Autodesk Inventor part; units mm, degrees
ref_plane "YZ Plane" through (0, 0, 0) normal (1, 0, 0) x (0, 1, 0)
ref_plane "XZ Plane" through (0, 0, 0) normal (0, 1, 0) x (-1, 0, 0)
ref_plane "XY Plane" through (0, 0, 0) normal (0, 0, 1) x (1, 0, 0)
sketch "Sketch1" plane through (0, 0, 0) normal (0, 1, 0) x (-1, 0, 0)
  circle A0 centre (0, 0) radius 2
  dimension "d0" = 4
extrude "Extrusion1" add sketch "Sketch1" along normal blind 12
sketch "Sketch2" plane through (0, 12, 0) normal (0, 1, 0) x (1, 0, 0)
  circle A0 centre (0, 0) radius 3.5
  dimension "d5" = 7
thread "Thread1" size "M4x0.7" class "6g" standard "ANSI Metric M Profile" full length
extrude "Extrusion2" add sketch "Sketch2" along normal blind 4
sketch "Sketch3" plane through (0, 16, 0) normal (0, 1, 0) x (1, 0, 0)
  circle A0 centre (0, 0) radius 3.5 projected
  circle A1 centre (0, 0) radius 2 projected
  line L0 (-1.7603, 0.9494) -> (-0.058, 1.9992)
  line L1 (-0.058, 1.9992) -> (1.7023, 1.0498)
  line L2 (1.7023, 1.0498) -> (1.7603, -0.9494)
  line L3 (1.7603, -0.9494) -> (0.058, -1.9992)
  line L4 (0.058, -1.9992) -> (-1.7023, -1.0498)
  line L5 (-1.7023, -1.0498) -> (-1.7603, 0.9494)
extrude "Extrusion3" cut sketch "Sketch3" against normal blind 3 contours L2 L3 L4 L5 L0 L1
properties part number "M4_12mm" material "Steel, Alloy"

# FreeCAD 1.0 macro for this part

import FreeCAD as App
import Part
import Sketcher

V = App.Vector
Q = App.Units.Quantity


def add_polygon(sketch, points):
    """Adds a closed chain of lines whose ends are joined by coincident constraints."""
    first, n = sketch.GeometryCount, len(points)
    for a, b in zip(points, points[1:] + points[:1]):
        sketch.addGeometry(Part.LineSegment(App.Vector(*a, 0), App.Vector(*b, 0)), False)
    for i in range(n):
        sketch.addConstraint(Sketcher.Constraint("Coincident", first + i, 2, first + (i + 1) % n, 1))

doc = App.newDocument("Part")
body = doc.addObject("PartDesign::Body", "Body")

# Sketch on XZ plane
sketch1 = body.newObject("Sketcher::SketchObject", "Sketch")
sketch1.AttachmentSupport = (doc.getObject("XZ_Plane"), [""])
sketch1.MapMode = "FlatFace"
sketch1.addGeometry(Part.Circle(V(0, 0, 0), V(0, 0, 1), 2), False)
sketch1.addConstraint(Sketcher.Constraint("Coincident", 0, 3, -1, 1))
sketch1.addConstraint(Sketcher.Constraint("Diameter", 0, Q("4 mm")))
pad1 = body.newObject("PartDesign::Pad", "Pad")
pad1.Profile = sketch1
pad1.Length = 12
pad1.Reversed = True

# Sketch on XZ plane
sketch2 = body.newObject("Sketcher::SketchObject", "Sketch001")
sketch2.AttachmentSupport = (doc.getObject("XZ_Plane"), [""])
sketch2.MapMode = "FlatFace"
sketch2.AttachmentOffset = App.Placement(V(0, 0, -12), App.Rotation())
sketch2.addGeometry(Part.Circle(V(0, 0, 0), V(0, 0, 1), 3.5), False)
sketch2.addConstraint(Sketcher.Constraint("Coincident", 0, 3, -1, 1))
sketch2.addConstraint(Sketcher.Constraint("Diameter", 0, Q("7 mm")))
pad2 = body.newObject("PartDesign::Pad", "Pad001")
pad2.Profile = sketch2
pad2.Length = 4
pad2.Reversed = True

# Sketch on XZ plane
sketch3 = body.newObject("Sketcher::SketchObject", "Sketch002")
sketch3.AttachmentSupport = (doc.getObject("XZ_Plane"), [""])
sketch3.MapMode = "FlatFace"
sketch3.AttachmentOffset = App.Placement(V(0, 0, -16), App.Rotation())
add_polygon(sketch3, [(1.8, 0.9), (1.7, -1), (-0.1, -2), (-1.8, -0.9), (-1.7, 1), (0.1, 2)])  # lines 0-5
sketch3.addConstraint(Sketcher.Constraint("Symmetric", 0, 2, 3, 2, -1, 1))
sketch3.addConstraint(Sketcher.Constraint("Symmetric", 1, 2, 4, 2, -1, 1))
sketch3.addConstraint(Sketcher.Constraint("Symmetric", 2, 2, 5, 2, -1, 1))
sketch3.addConstraint(Sketcher.Constraint("Equal", 0, 1))
sketch3.addConstraint(Sketcher.Constraint("Equal", 1, 2))
sketch3.addConstraint(Sketcher.Constraint("Distance", 0, Q("2 mm")))
sketch3.addConstraint(Sketcher.Constraint("Angle", 1, Q("-151.6602 deg")))
sketch3.addConstraint(Sketcher.Constraint("DistanceX", 1, 2, -1, 1, Q("0.058 mm")))
sketch3.addConstraint(Sketcher.Constraint("DistanceX", 2, 2, 3, 2, Q("0.058 mm")))
pocket1 = body.newObject("PartDesign::Pocket", "Pocket")
pocket1.Profile = sketch3
pocket1.Length = 3
pocket1.Reversed = True

doc.recompute()
